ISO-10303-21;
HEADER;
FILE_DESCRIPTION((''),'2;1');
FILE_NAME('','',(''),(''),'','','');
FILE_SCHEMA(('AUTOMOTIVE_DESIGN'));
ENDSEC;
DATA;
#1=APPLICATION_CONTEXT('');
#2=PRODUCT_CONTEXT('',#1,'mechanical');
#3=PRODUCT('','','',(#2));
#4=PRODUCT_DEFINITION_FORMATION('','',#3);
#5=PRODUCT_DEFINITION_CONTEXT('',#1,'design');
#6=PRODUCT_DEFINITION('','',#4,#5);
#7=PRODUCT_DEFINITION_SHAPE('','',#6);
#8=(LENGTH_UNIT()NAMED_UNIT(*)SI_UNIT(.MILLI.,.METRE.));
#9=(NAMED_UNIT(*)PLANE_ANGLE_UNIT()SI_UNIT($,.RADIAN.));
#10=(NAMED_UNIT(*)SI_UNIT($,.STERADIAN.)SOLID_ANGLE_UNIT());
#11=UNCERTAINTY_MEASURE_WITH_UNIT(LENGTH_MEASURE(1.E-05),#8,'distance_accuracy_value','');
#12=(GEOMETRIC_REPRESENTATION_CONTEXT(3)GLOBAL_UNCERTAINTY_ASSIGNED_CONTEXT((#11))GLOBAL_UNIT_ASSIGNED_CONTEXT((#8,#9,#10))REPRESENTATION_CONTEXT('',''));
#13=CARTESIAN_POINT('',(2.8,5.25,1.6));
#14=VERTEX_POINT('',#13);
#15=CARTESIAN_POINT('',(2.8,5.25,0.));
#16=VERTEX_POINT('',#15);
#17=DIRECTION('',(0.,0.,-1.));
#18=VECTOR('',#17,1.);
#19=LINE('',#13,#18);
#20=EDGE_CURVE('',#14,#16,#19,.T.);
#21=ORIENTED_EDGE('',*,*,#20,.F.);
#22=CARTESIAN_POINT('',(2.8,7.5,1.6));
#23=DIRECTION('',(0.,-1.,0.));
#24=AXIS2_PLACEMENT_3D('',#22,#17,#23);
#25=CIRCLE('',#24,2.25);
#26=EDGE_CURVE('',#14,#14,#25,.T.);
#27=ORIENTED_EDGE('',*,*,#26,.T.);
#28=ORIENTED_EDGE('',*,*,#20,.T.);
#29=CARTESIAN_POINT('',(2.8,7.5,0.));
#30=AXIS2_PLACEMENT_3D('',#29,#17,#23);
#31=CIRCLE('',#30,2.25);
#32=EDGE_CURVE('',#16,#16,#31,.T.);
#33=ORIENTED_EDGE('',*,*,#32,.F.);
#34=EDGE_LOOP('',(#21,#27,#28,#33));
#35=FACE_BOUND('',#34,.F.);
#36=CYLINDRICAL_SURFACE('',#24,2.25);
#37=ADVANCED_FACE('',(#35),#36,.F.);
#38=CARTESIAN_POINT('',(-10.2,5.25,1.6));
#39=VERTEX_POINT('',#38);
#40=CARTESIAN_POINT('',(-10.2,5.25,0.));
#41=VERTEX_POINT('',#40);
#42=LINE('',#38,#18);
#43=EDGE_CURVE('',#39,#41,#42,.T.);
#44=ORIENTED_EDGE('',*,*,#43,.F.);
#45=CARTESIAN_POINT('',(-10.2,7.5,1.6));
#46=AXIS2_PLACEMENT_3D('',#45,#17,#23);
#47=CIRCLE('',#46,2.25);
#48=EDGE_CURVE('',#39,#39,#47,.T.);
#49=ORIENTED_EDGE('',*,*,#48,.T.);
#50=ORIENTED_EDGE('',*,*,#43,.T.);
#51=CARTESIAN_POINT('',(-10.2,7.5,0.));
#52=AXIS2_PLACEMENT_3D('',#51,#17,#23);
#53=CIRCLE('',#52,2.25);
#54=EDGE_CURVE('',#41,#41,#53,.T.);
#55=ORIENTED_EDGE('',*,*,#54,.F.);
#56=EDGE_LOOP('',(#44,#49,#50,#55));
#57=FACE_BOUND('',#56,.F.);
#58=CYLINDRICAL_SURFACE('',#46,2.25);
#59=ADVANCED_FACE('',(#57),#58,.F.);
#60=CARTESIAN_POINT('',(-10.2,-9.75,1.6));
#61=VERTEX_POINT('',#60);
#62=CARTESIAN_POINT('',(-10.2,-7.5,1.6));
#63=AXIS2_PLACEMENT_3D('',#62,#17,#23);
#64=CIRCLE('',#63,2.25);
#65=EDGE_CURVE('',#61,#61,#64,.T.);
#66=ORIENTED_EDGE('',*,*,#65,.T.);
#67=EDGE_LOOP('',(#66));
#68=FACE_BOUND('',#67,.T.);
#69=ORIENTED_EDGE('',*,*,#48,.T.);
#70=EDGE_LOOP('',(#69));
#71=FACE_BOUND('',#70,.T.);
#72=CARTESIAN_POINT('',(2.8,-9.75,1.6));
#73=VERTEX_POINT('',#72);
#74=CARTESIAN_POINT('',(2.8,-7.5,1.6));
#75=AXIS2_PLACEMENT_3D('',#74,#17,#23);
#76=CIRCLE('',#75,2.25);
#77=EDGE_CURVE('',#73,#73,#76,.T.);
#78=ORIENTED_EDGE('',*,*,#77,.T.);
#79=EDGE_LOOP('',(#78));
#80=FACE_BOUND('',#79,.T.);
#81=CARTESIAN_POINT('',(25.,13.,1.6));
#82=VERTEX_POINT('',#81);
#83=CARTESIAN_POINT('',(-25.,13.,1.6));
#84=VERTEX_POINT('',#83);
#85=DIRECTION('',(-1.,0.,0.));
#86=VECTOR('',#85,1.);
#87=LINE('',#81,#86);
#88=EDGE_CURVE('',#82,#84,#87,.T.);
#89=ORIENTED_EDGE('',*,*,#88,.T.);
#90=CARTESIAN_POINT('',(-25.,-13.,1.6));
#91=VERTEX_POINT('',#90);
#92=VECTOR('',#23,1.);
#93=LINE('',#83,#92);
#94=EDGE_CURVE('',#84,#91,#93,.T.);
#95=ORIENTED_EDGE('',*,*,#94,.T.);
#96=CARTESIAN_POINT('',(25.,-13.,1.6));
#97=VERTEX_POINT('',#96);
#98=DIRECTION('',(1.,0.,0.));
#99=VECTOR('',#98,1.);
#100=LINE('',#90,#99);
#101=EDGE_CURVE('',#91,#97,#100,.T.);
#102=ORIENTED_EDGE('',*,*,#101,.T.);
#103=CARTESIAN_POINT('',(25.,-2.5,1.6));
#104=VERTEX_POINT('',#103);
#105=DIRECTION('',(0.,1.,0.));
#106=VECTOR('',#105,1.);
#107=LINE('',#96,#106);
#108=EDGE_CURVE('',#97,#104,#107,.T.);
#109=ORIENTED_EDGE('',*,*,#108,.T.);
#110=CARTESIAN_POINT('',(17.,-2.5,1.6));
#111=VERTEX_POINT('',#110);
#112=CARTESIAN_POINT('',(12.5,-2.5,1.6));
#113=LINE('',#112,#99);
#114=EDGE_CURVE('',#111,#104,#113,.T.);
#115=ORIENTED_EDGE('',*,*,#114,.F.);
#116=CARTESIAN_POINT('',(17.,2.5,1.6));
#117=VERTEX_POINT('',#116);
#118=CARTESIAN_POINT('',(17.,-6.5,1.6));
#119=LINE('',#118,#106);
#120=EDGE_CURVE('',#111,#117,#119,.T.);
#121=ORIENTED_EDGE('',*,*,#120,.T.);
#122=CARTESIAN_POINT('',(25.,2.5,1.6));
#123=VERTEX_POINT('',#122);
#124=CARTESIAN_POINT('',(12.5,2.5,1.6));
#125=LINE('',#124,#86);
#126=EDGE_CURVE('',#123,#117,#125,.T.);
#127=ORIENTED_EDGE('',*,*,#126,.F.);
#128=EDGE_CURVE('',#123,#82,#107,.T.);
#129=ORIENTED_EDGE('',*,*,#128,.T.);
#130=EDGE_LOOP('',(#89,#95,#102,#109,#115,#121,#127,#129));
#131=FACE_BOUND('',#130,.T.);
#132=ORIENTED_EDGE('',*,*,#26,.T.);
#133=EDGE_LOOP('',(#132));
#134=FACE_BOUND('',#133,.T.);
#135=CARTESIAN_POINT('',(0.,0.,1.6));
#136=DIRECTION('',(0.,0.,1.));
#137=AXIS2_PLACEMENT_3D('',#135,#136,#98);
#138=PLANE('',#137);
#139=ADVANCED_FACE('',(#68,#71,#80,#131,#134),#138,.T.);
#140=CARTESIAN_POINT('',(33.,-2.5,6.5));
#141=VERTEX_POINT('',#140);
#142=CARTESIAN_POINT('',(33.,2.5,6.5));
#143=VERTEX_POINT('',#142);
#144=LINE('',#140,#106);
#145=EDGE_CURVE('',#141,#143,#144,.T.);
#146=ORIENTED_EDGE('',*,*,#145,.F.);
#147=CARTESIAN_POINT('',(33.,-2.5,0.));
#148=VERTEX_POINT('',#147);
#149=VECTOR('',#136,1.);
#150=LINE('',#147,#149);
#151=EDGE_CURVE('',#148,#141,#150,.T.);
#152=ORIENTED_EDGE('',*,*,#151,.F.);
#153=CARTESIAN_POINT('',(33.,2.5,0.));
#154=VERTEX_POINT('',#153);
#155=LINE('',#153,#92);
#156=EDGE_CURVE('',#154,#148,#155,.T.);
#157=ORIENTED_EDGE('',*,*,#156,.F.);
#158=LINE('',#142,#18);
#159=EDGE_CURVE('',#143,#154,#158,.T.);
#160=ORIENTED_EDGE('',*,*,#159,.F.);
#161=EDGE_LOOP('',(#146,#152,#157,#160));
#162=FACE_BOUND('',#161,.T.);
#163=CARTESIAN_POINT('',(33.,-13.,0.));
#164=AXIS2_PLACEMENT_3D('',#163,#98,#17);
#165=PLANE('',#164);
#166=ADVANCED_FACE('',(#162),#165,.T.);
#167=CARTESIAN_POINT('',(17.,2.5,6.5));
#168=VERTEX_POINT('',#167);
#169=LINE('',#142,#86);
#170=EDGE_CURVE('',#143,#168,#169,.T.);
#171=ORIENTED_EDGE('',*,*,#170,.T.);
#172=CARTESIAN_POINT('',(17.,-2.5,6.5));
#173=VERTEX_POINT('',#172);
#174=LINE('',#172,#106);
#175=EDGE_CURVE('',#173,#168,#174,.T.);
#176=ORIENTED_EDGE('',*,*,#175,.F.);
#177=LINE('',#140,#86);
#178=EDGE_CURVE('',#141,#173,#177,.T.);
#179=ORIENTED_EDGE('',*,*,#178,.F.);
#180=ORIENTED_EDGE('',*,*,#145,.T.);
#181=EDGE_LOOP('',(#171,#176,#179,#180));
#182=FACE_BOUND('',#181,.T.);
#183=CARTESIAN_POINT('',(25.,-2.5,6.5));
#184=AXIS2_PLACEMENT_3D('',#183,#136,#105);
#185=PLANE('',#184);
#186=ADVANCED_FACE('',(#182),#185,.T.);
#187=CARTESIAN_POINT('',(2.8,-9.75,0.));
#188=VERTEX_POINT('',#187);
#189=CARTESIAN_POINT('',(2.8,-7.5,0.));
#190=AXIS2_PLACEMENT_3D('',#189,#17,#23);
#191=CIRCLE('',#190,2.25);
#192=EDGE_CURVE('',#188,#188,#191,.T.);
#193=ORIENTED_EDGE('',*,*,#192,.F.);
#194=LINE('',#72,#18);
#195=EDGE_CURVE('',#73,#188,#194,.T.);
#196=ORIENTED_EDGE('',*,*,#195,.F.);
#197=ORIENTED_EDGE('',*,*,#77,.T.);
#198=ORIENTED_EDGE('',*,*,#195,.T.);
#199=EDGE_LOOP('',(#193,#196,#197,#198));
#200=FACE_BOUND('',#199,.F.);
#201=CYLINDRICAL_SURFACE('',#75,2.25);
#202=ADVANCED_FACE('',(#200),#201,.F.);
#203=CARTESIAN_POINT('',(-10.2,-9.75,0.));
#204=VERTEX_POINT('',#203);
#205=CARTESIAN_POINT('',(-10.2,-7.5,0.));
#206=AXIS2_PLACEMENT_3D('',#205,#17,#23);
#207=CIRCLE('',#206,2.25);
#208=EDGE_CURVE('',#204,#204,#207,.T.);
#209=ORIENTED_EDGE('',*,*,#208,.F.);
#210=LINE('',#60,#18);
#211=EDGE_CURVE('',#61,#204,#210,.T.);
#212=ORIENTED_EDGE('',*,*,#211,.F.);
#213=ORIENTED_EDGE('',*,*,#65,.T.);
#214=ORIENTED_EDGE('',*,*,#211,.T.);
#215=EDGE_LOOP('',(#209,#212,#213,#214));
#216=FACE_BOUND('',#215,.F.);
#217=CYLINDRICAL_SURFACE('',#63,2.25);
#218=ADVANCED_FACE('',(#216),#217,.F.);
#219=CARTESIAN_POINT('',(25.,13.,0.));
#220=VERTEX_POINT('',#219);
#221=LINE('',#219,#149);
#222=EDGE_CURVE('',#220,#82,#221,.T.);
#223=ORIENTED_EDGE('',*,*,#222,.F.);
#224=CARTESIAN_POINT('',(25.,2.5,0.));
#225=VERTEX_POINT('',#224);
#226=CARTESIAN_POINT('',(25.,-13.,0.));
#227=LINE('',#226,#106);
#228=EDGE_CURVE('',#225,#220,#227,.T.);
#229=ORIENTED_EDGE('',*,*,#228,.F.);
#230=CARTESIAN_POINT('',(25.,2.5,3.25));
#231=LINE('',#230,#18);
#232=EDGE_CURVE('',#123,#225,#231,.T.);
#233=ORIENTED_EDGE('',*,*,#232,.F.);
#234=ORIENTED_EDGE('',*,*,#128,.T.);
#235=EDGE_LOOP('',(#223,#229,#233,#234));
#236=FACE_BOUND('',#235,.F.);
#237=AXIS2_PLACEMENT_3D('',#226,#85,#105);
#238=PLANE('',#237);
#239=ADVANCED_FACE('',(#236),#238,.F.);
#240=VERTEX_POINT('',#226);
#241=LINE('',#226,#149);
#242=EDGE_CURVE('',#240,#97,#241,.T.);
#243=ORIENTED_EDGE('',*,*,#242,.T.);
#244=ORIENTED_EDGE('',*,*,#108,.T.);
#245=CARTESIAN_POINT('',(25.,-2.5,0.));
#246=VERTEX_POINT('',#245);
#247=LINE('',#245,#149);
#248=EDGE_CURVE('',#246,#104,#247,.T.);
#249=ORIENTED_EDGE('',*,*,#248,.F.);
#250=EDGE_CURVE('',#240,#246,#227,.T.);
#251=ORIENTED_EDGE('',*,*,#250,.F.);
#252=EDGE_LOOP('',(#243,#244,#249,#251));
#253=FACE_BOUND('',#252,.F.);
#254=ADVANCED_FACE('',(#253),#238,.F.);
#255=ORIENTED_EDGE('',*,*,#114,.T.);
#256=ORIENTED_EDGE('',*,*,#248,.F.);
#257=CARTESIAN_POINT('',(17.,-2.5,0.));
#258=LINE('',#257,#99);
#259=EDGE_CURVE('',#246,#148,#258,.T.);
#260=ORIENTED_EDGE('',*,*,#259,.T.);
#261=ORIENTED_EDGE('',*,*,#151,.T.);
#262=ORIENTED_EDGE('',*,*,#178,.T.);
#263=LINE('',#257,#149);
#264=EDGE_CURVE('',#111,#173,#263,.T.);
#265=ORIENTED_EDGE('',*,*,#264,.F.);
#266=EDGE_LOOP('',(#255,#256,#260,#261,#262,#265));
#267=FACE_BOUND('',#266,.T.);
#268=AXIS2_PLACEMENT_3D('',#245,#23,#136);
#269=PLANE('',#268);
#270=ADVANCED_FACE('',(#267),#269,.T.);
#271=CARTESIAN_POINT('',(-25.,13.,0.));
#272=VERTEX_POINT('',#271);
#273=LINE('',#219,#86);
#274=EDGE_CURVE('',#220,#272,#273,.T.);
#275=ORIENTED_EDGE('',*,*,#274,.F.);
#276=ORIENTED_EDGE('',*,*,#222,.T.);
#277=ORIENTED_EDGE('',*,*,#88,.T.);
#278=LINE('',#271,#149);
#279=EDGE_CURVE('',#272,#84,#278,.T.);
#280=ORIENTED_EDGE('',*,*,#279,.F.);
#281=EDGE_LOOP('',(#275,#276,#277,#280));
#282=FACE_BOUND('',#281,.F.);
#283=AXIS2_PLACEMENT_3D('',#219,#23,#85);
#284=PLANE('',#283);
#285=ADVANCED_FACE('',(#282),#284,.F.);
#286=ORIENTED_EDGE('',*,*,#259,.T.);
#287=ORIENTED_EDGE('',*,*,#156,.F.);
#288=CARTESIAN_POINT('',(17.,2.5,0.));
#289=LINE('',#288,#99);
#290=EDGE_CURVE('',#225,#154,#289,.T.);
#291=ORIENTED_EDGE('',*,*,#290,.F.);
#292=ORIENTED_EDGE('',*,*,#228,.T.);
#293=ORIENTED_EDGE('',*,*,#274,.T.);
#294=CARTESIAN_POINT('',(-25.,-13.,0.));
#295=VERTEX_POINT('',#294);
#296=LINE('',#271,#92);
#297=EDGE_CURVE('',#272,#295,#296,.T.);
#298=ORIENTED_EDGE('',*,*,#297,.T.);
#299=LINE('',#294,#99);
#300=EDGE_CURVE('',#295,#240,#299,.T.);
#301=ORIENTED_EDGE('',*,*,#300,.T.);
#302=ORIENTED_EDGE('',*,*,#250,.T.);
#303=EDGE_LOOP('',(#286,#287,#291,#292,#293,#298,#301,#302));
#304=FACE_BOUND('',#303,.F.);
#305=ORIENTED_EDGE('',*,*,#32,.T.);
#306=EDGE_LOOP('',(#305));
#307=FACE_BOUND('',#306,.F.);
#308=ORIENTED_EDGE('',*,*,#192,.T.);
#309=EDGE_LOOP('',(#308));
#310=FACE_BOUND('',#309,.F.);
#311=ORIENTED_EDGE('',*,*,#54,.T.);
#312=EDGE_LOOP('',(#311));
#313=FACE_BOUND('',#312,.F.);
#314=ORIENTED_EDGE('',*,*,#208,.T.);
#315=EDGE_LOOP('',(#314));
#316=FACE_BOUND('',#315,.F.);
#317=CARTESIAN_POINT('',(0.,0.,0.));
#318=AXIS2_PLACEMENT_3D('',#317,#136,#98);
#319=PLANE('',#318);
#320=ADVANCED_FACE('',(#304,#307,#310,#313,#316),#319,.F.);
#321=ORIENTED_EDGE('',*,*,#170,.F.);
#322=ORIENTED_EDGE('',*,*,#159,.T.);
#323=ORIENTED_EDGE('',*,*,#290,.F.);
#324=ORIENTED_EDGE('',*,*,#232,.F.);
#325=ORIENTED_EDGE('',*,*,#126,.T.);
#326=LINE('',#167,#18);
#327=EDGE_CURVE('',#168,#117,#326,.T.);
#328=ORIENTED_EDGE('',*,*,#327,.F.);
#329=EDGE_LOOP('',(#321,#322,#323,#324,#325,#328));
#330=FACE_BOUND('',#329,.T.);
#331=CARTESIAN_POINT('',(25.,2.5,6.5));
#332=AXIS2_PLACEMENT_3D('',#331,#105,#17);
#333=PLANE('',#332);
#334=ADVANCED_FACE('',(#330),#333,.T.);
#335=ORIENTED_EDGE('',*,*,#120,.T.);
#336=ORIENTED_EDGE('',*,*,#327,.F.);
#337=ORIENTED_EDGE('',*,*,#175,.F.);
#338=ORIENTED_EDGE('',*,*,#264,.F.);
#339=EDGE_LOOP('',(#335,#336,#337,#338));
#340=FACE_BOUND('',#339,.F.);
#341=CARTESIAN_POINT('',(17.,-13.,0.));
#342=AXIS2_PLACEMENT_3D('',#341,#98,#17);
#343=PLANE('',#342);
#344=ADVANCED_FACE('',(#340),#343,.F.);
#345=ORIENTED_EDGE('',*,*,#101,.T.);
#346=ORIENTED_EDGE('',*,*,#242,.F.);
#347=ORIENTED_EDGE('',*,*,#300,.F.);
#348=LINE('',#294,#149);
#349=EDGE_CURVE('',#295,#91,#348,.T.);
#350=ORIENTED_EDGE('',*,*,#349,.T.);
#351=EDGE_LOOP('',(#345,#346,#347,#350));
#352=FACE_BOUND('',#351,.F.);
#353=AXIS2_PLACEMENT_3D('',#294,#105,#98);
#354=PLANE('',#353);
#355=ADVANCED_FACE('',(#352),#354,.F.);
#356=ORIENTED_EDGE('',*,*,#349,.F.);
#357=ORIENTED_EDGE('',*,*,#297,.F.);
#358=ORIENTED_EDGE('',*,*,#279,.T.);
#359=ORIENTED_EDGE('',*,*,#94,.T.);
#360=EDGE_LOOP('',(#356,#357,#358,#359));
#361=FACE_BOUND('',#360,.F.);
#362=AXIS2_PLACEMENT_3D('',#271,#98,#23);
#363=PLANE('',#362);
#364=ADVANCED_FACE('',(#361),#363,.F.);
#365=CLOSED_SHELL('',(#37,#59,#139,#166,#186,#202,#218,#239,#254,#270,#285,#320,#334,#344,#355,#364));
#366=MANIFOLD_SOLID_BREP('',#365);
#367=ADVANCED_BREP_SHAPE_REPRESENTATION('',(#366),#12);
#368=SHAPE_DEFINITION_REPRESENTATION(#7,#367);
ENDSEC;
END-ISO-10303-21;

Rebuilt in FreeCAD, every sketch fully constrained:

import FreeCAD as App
import Part
import Sketcher

V = App.Vector
Q = App.Units.Quantity

doc = App.newDocument("Part")
body = doc.addObject("PartDesign::Body", "Body")

sketch1 = doc.addObject("Sketcher::SketchObject", "Sketch")
body.addObject(sketch1)
sketch1.AttachmentSupport = (doc.XY_Plane, [""])
sketch1.MapMode = "FlatFace"
sketch1.addGeometry([
    Part.LineSegment(V(-25, 13, 0), V(-25, -13, 0)),
    Part.LineSegment(V(-25, -13, 0), V(25, -13, 0)),
    Part.LineSegment(V(25, -13, 0), V(25, 13, 0)),
    Part.LineSegment(V(25, 13, 0), V(-25, 13, 0)),
], False)
sketch1.addConstraint([
    Sketcher.Constraint("Coincident", 0, 2, 1, 1),
    Sketcher.Constraint("Coincident", 1, 2, 2, 1),
    Sketcher.Constraint("Coincident", 2, 2, 3, 1),
    Sketcher.Constraint("Coincident", 3, 2, 0, 1),
    Sketcher.Constraint("Vertical", 0),
    Sketcher.Constraint("Horizontal", 1),
    Sketcher.Constraint("Vertical", 2),
    Sketcher.Constraint("Horizontal", 3),
    Sketcher.Constraint("Symmetric", 0, 2, 2, 2, -1, 1),
    Sketcher.Constraint("DistanceX", 1, 1, 1, 2, Q("50 mm")),
    Sketcher.Constraint("DistanceY", 0, 2, 0, 1, Q("26 mm")),
])
pad1 = doc.addObject("PartDesign::Pad", "Pad")
body.addObject(pad1)
pad1.Profile = sketch1
pad1.Length = 1.6

sketch2 = doc.addObject("Sketcher::SketchObject", "Sketch001")
body.addObject(sketch2)
sketch2.AttachmentSupport = (doc.XY_Plane, [""])
sketch2.MapMode = "FlatFace"
sketch2.AttachmentOffset = App.Placement(V(0, 0, 1.6), App.Rotation())
sketch2.addGeometry([
    Part.Circle(V(-10.2, 7.5, 0), V(0, 0, 1), 2.2),
    Part.Circle(V(2.8, 7.5, 0), V(0, 0, 1), 2.2),
    Part.Circle(V(2.8, -7.5, 0), V(0, 0, 1), 2.2),
    Part.Circle(V(-10.2, -7.5, 0), V(0, 0, 1), 2.2),
], False)
sketch2.addConstraint([
    Sketcher.Constraint("Equal", 0, 1),
    Sketcher.Constraint("Equal", 1, 2),
    Sketcher.Constraint("Equal", 2, 3),
    Sketcher.Constraint("Symmetric", 1, 3, 2, 3, -1),
    Sketcher.Constraint("Symmetric", 0, 3, 3, 3, -1),
    Sketcher.Constraint("Horizontal", 0, 3, 1, 3),
    Sketcher.Constraint("Diameter", 0, Q("4.5 mm")),
    Sketcher.Constraint("DistanceX", 0, 3, 1, 3, Q("13 mm")),
    Sketcher.Constraint("DistanceY", 2, 3, 1, 3, Q("15 mm")),
    Sketcher.Constraint("DistanceX", 0, 3, -1, 1, Q("10.2 mm")),
])
doc.recompute()
hole = doc.addObject("PartDesign::Hole", "Hole")
body.addObject(hole)
hole.Profile = sketch2
hole.ThreadType = "None"
hole.Diameter = 4.5
hole.DepthType = "ThroughAll"

sketch3 = doc.addObject("Sketcher::SketchObject", "Sketch002")
body.addObject(sketch3)
sketch3.AttachmentSupport = (doc.YZ_Plane, [""])
sketch3.MapMode = "FlatFace"
sketch3.AttachmentOffset = App.Placement(V(0, 0, 25), App.Rotation())
sketch3.addGeometry([
    Part.LineSegment(V(-2, 6, 0), V(-2, 0, 0)),
    Part.LineSegment(V(-2, 0, 0), V(2, 0, 0)),
    Part.LineSegment(V(2, 0, 0), V(2, 6, 0)),
    Part.LineSegment(V(2, 6, 0), V(-2, 6, 0)),
], False)
sketch3.addConstraint([
    Sketcher.Constraint("Coincident", 0, 2, 1, 1),
    Sketcher.Constraint("Coincident", 1, 2, 2, 1),
    Sketcher.Constraint("Coincident", 2, 2, 3, 1),
    Sketcher.Constraint("Coincident", 3, 2, 0, 1),
    Sketcher.Constraint("Vertical", 0),
    Sketcher.Constraint("Horizontal", 1),
    Sketcher.Constraint("Vertical", 2),
    Sketcher.Constraint("Horizontal", 3),
    Sketcher.Constraint("Symmetric", 0, 2, 1, 2, -1, 1),
    Sketcher.Constraint("DistanceX", 1, 1, 1, 2, Q("5 mm")),
    Sketcher.Constraint("DistanceY", 0, 2, 0, 1, Q("6.5 mm")),
])
pad2 = doc.addObject("PartDesign::Pad", "Pad001")
body.addObject(pad2)
pad2.Profile = sketch3
pad2.Length = 16
pad2.Midplane = True

doc.recompute()
